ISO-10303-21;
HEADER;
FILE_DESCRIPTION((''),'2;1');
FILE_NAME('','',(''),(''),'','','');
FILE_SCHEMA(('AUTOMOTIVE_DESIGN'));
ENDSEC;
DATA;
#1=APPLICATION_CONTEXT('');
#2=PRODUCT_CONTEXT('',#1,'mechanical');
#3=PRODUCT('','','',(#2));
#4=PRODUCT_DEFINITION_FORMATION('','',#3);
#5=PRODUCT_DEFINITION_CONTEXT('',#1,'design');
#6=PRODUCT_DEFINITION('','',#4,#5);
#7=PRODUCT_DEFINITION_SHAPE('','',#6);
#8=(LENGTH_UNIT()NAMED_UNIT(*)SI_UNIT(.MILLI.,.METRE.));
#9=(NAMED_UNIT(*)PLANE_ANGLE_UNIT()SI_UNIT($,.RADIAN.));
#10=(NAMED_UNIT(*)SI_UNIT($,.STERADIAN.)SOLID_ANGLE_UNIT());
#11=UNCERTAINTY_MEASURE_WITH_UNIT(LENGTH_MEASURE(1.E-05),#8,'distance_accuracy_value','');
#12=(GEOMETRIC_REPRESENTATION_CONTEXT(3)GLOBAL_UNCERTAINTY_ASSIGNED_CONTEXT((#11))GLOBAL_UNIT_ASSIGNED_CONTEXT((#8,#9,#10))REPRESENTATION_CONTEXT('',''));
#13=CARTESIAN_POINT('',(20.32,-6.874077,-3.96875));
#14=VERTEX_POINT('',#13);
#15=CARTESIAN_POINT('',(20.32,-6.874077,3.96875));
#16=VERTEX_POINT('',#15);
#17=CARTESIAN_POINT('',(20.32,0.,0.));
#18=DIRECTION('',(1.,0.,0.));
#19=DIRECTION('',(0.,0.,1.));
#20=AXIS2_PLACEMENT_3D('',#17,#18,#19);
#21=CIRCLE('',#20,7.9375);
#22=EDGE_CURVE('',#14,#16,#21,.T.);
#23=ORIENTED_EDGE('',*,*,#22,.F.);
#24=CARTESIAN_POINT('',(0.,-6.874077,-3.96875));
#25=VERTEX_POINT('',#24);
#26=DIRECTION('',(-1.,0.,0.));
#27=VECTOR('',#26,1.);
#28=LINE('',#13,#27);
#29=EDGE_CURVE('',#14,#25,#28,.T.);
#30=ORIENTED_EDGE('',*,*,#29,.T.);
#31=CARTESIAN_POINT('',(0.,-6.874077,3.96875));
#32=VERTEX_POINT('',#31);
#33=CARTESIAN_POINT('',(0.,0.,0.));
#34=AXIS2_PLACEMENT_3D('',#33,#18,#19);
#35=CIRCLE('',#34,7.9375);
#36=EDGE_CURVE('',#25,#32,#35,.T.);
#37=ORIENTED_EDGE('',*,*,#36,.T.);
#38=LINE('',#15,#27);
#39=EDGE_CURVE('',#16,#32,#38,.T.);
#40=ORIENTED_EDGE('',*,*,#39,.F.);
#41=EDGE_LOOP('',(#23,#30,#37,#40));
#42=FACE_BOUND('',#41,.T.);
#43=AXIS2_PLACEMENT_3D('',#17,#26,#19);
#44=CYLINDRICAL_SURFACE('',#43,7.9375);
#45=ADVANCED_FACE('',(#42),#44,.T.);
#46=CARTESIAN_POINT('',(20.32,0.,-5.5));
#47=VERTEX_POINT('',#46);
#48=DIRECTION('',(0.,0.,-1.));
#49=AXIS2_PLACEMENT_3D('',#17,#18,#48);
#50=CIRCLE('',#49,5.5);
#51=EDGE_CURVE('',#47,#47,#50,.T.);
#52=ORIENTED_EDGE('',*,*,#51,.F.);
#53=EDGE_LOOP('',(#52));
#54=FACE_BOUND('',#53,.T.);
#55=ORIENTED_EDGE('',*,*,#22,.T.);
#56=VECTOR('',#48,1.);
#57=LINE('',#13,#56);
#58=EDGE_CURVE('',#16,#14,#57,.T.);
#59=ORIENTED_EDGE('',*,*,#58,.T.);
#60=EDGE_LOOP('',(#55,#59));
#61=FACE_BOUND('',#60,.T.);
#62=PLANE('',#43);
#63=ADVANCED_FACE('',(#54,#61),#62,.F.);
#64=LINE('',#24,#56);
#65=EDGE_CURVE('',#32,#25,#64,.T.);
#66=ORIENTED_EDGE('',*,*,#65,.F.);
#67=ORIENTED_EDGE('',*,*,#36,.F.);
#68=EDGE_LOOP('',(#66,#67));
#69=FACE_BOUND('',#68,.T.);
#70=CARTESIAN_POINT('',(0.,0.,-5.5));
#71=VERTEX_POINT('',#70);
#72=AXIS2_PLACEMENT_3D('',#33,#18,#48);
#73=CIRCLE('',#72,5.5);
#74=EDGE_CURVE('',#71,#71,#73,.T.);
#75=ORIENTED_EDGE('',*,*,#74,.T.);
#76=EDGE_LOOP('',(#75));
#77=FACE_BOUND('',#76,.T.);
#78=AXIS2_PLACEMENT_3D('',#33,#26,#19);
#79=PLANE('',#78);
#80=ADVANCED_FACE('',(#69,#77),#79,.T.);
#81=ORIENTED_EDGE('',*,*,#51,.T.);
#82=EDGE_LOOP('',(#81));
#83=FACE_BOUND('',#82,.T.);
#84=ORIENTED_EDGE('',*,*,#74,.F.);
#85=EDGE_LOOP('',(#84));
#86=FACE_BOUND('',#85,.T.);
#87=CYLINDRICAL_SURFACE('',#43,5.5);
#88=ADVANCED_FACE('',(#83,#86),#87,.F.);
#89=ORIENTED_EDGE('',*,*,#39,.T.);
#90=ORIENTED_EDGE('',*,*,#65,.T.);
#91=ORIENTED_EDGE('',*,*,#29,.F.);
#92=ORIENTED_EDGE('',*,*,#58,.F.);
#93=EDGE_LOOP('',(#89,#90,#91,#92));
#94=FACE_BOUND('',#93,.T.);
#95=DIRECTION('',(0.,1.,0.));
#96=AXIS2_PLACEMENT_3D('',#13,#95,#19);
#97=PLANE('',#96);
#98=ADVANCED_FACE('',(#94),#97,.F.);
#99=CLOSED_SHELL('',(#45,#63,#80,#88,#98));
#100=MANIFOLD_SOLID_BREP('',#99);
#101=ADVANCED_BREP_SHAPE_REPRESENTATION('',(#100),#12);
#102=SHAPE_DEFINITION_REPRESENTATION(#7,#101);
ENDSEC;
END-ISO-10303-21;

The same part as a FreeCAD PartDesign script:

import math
import FreeCAD as App
import Part
import Sketcher
Q = App.Units.Quantity

doc = App.newDocument("Part")
params = doc.addObject("Spreadsheet::Sheet", "Params")
for row, (alias, value) in enumerate([
    ("sketch1_radius", "0.3125 in"),
    ("sketch1_height", "0.3125 in"),
    ("pad1_length", "0.8 in"),
], start=1):
    params.set(f"A{row}", alias)
    params.set(f"B{row}", "=" + value)
    params.setAlias(f"B{row}", alias)

body = doc.addObject("PartDesign::Body", "Body")

# Sketch on YZ plane
sketch1 = body.newObject("Sketcher::SketchObject", "Sketch")
sketch1.AttachmentSupport = (doc.getObject("YZ_Plane"), [""])
sketch1.MapMode = "FlatFace"
sketch1.addGeometry(Part.LineSegment(App.Vector(-7, 4, 0), App.Vector(-7, -4, 0)), False)
sketch1.addGeometry(Part.ArcOfCircle(Part.Circle(App.Vector(0, 0, 0), App.Vector(0, 0, 1), 8), math.radians(-150), math.radians(150)), False)
sketch1.addGeometry(Part.Circle(App.Vector(0, 0, 0), App.Vector(0, 0, 1), 6), False)
sketch1.addConstraint(Sketcher.Constraint("Coincident", 0, 1, 1, 2))
sketch1.addConstraint(Sketcher.Constraint("Coincident", 1, 1, 0, 2))
sketch1.addConstraint(Sketcher.Constraint("Vertical", 0))
sketch1.addConstraint(Sketcher.Constraint("Coincident", 1, 3, -1, 1))
sketch1.addConstraint(Sketcher.Constraint("Coincident", 2, 3, -1, 1))
sketch1.addConstraint(Sketcher.Constraint("Radius", 1, Q("0.3125 in")))
sketch1.addConstraint(Sketcher.Constraint("Diameter", 2, 11.0))
sketch1.addConstraint(Sketcher.Constraint("DistanceY", 0, 2, 0, 1, Q("0.3125 in")))
sketch1.setExpression("Constraints[5]", "Params.sketch1_radius")
sketch1.setExpression("Constraints[7]", "Params.sketch1_height")
pad1 = body.newObject("PartDesign::Pad", "Pad")
pad1.Profile = sketch1
pad1.setExpression("Length", "Params.pad1_length")

doc.recompute()
